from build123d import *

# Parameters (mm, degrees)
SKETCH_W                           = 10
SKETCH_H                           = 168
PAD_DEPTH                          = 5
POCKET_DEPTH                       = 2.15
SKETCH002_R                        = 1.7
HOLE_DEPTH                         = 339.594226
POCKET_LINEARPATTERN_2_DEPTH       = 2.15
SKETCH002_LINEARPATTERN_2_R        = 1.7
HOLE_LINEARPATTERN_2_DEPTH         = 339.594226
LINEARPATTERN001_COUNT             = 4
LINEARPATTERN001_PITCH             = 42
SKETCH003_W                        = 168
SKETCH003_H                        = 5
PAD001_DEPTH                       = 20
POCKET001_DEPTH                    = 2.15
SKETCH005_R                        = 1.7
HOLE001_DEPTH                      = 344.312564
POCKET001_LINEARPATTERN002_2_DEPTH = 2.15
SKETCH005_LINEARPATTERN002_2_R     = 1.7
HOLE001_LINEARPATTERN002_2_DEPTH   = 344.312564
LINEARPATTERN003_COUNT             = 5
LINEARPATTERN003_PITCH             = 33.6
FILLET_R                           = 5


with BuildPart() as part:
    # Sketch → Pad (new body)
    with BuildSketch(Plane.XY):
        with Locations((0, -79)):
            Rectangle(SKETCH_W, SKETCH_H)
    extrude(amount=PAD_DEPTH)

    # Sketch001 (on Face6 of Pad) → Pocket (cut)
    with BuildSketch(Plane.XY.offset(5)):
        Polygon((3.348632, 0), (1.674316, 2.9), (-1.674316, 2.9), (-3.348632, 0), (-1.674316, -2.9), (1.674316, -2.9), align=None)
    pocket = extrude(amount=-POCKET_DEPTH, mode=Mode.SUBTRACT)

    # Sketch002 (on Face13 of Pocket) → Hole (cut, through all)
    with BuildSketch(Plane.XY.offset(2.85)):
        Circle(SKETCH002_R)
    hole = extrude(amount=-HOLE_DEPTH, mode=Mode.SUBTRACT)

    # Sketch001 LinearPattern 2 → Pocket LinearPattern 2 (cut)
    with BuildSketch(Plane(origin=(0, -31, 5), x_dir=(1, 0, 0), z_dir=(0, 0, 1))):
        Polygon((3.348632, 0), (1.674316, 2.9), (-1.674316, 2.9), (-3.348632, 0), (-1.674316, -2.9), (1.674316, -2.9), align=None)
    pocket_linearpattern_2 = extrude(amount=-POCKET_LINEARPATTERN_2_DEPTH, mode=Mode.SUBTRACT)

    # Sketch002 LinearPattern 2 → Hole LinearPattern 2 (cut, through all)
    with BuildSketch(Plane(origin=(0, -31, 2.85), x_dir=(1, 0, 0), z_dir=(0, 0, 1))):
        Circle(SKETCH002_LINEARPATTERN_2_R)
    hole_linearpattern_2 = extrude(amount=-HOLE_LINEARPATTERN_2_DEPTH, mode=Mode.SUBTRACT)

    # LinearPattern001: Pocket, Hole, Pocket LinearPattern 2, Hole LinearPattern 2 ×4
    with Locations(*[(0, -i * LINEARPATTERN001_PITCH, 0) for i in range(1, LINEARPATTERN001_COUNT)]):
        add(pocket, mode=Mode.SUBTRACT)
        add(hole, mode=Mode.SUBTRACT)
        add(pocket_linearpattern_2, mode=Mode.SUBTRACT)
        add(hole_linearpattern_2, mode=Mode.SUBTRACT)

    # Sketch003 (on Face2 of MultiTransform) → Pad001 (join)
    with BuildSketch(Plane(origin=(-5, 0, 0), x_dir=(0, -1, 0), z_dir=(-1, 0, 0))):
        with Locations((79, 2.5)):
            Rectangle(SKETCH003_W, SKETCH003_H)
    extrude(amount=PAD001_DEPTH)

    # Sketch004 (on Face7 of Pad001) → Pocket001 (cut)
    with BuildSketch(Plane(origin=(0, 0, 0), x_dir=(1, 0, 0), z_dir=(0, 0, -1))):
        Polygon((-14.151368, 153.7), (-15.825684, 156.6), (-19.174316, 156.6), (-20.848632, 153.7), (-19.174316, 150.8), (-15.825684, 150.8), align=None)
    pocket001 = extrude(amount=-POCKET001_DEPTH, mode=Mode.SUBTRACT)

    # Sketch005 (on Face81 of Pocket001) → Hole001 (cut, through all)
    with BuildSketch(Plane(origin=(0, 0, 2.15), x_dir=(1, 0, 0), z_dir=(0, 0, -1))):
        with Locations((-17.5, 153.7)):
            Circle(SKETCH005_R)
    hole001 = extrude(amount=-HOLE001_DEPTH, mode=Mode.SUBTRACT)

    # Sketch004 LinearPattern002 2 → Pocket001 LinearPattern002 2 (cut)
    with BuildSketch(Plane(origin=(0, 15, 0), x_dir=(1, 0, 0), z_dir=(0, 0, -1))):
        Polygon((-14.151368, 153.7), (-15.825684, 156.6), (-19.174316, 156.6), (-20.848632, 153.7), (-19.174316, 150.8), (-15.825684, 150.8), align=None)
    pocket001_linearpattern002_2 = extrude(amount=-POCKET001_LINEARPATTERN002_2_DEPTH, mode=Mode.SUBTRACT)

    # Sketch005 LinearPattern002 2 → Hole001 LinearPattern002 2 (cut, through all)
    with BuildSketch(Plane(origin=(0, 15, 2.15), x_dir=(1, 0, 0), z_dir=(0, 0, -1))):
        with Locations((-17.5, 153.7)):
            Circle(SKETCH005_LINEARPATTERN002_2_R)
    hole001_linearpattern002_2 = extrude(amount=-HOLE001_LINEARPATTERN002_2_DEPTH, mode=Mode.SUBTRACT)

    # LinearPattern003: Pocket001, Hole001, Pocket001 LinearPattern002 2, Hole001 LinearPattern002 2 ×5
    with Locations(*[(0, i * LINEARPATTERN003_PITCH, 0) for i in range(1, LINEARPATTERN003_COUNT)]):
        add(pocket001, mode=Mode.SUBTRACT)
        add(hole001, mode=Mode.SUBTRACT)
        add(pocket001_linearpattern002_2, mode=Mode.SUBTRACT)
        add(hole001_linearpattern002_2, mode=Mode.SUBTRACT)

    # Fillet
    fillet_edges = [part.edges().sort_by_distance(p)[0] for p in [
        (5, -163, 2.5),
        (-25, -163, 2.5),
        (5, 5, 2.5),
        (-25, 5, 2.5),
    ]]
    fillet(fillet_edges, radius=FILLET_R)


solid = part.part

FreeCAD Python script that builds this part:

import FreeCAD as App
import Part
import Sketcher

V = App.Vector
Q = App.Units.Quantity


def edges_at(feature, points):
    """Names of the edges that pass closest to the given points."""
    edges = feature.Shape.Edges
    near = lambda p: min(range(len(edges)), key=lambda i: edges[i].distToShape(Part.Vertex(*p))[0])
    return sorted({f"Edge{near(p) + 1}" for p in points})

doc = App.newDocument("Part")
body = doc.addObject("PartDesign::Body", "Body")

# Sketch on XY plane
sketch1 = body.newObject("Sketcher::SketchObject", "Sketch")
sketch1.AttachmentSupport = (doc.getObject("XY_Plane"), [""])
sketch1.MapMode = "FlatFace"
sketch1.addGeometry([
    Part.LineSegment(V(-5, 5, 0), V(-5, -163, 0)),
    Part.LineSegment(V(-5, -163, 0), V(5, -163, 0)),
    Part.LineSegment(V(5, -163, 0), V(5, 5, 0)),
    Part.LineSegment(V(5, 5, 0), V(-5, 5, 0)),
], False)
sketch1.addConstraint([
    Sketcher.Constraint("Coincident", 0, 2, 1, 1),
    Sketcher.Constraint("Coincident", 1, 2, 2, 1),
    Sketcher.Constraint("Coincident", 2, 2, 3, 1),
    Sketcher.Constraint("Coincident", 3, 2, 0, 1),
    Sketcher.Constraint("Vertical", 0),
    Sketcher.Constraint("Horizontal", 1),
    Sketcher.Constraint("Vertical", 2),
    Sketcher.Constraint("Horizontal", 3),
    Sketcher.Constraint("DistanceX", 1, 1, 1, 2, 10.0),
    Sketcher.Constraint("DistanceY", 0, 2, 0, 1, 168.0),
    Sketcher.Constraint("DistanceX", 0, 2, -1, 1, 5.0),
    Sketcher.Constraint("DistanceY", 0, 2, -1, 1, 163.0),
])
pad1 = body.newObject("PartDesign::Pad", "Pad")
pad1.Profile = sketch1
pad1.Length = 5

# Sketch on XY plane
sketch2 = body.newObject("Sketcher::SketchObject", "Sketch001")
sketch2.AttachmentSupport = (doc.getObject("XY_Plane"), [""])
sketch2.MapMode = "FlatFace"
sketch2.AttachmentOffset = App.Placement(V(0, 0, 5), App.Rotation())
sketch2.addGeometry([
    Part.LineSegment(V(3.348632, 0, 0), V(1.674316, 2.9, 0)),  # 0
    Part.LineSegment(V(1.674316, 2.9, 0), V(-1.674316, 2.9, 0)),  # 1
    Part.LineSegment(V(-1.674316, 2.9, 0), V(-3.348632, 0, 0)),  # 2
    Part.LineSegment(V(-3.348632, 0, 0), V(-1.674316, -2.9, 0)),  # 3
    Part.LineSegment(V(-1.674316, -2.9, 0), V(1.674316, -2.9, 0)),  # 4
    Part.LineSegment(V(1.674316, -2.9, 0), V(3.348632, 0, 0)),  # 5
], False)
sketch2.addConstraint([
    Sketcher.Constraint("Coincident", 0, 2, 1, 1),
    Sketcher.Constraint("Coincident", 1, 2, 2, 1),
    Sketcher.Constraint("Coincident", 2, 2, 3, 1),
    Sketcher.Constraint("Coincident", 3, 2, 4, 1),
    Sketcher.Constraint("Coincident", 4, 2, 5, 1),
    Sketcher.Constraint("Coincident", 5, 2, 0, 1),
    Sketcher.Constraint("Horizontal", 1),
    Sketcher.Constraint("Horizontal", 4),
    Sketcher.Constraint("Symmetric", 0, 2, 3, 2, -1, 1),
    Sketcher.Constraint("Symmetric", 2, 2, 5, 2, -1, 1),
    Sketcher.Constraint("PointOnObject", 2, 2, -1),
    Sketcher.Constraint("Parallel", 2, 5),
    Sketcher.Constraint("Vertical", 1, 2, 3, 2),
    Sketcher.Constraint("Angle", 0, Q("120.000003 deg")),
    Sketcher.Constraint("DistanceY", -1, 1, 0, 2, 2.9),
    Sketcher.Constraint("DistanceX", 1, 2, 1, 1, 3.348632),
])
pocket1 = body.newObject("PartDesign::Pocket", "Pocket")
pocket1.Profile = sketch2
pocket1.Length = 2.15

# Sketch on XY plane
sketch3 = body.newObject("Sketcher::SketchObject", "Sketch002")
sketch3.AttachmentSupport = (doc.getObject("XY_Plane"), [""])
sketch3.MapMode = "FlatFace"
sketch3.AttachmentOffset = App.Placement(V(0, 0, 2.85), App.Rotation())
sketch3.addGeometry(Part.Circle(V(0, 0, 0), V(0, 0, 1), 1.7), False)
sketch3.addConstraint([
    Sketcher.Constraint("Coincident", 0, 3, -1, 1),
    Sketcher.Constraint("Diameter", 0, 3.4),
])
pocket2 = body.newObject("PartDesign::Pocket", "Pocket001")
pocket2.Profile = sketch3
pocket2.Type = "ThroughAll"

# Sketch on XY plane
sketch4 = body.newObject("Sketcher::SketchObject", "Sketch003")
sketch4.AttachmentSupport = (doc.getObject("XY_Plane"), [""])
sketch4.MapMode = "FlatFace"
sketch4.AttachmentOffset = App.Placement(V(0, 0, 5), App.Rotation())
sketch4.addGeometry([
    Part.LineSegment(V(3.348632, -31, 0), V(1.674316, -28.1, 0)),  # 0
    Part.LineSegment(V(1.674316, -28.1, 0), V(-1.674316, -28.1, 0)),  # 1
    Part.LineSegment(V(-1.674316, -28.1, 0), V(-3.348632, -31, 0)),  # 2
    Part.LineSegment(V(-3.348632, -31, 0), V(-1.674316, -33.9, 0)),  # 3
    Part.LineSegment(V(-1.674316, -33.9, 0), V(1.674316, -33.9, 0)),  # 4
    Part.LineSegment(V(1.674316, -33.9, 0), V(3.348632, -31, 0)),  # 5
], False)
sketch4.addConstraint([
    Sketcher.Constraint("Coincident", 0, 2, 1, 1),
    Sketcher.Constraint("Coincident", 1, 2, 2, 1),
    Sketcher.Constraint("Coincident", 2, 2, 3, 1),
    Sketcher.Constraint("Coincident", 3, 2, 4, 1),
    Sketcher.Constraint("Coincident", 4, 2, 5, 1),
    Sketcher.Constraint("Coincident", 5, 2, 0, 1),
    Sketcher.Constraint("Horizontal", 1),
    Sketcher.Constraint("Horizontal", 4),
    Sketcher.Constraint("Symmetric", 2, 2, 5, 2, -2),
    Sketcher.Constraint("Parallel", 0, 3),
    Sketcher.Constraint("Parallel", 2, 5),
    Sketcher.Constraint("Vertical", 1, 2, 3, 2),
    Sketcher.Constraint("Vertical", 0, 2, 4, 2),
    Sketcher.Constraint("Angle", 0, Q("120.000003 deg")),
    Sketcher.Constraint("DistanceY", 2, 2, -1, 1, 31.0),
    Sketcher.Constraint("DistanceY", 0, 2, -1, 1, 28.1),
    Sketcher.Constraint("DistanceX", 1, 2, 1, 1, 3.348632),
])
pocket3 = body.newObject("PartDesign::Pocket", "Pocket002")
pocket3.Profile = sketch4
pocket3.Length = 2.15

# Sketch on XY plane
sketch5 = body.newObject("Sketcher::SketchObject", "Sketch004")
sketch5.AttachmentSupport = (doc.getObject("XY_Plane"), [""])
sketch5.MapMode = "FlatFace"
sketch5.AttachmentOffset = App.Placement(V(0, 0, 2.85), App.Rotation())
sketch5.addGeometry(Part.Circle(V(0, -31, 0), V(0, 0, 1), 1.7), False)
sketch5.addConstraint([
    Sketcher.Constraint("PointOnObject", 0, 3, -2),
    Sketcher.Constraint("Diameter", 0, 3.4),
    Sketcher.Constraint("DistanceY", 0, 3, -1, 1, 31.0),
])
pocket4 = body.newObject("PartDesign::Pocket", "Pocket003")
pocket4.Profile = sketch5
pocket4.Type = "ThroughAll"
doc.recompute()

linearpattern = body.newObject("PartDesign::LinearPattern", "LinearPattern")
linearpattern.Originals = [pocket1, pocket2, pocket3, pocket4]
linearpattern.Direction = (doc.getObject("Y_Axis"), [""])
linearpattern.Mode = "offset"
linearpattern.Offset = 42
linearpattern.Occurrences = 4
linearpattern.Reversed = True
body.Tip = linearpattern

# Sketch on YZ plane
sketch6 = body.newObject("Sketcher::SketchObject", "Sketch005")
sketch6.AttachmentSupport = (doc.getObject("YZ_Plane"), [""])
sketch6.MapMode = "FlatFace"
sketch6.AttachmentOffset = App.Placement(V(0, 0, -5), App.Rotation())
sketch6.addGeometry([
    Part.LineSegment(V(5, 5, 0), V(5, 0, 0)),
    Part.LineSegment(V(5, 0, 0), V(-163, 0, 0)),
    Part.LineSegment(V(-163, 0, 0), V(-163, 5, 0)),
    Part.LineSegment(V(-163, 5, 0), V(5, 5, 0)),
], False)
sketch6.addConstraint([
    Sketcher.Constraint("Coincident", 0, 2, 1, 1),
    Sketcher.Constraint("Coincident", 1, 2, 2, 1),
    Sketcher.Constraint("Coincident", 2, 2, 3, 1),
    Sketcher.Constraint("Coincident", 3, 2, 0, 1),
    Sketcher.Constraint("Vertical", 0),
    Sketcher.Constraint("Horizontal", 1),
    Sketcher.Constraint("Vertical", 2),
    Sketcher.Constraint("Horizontal", 3),
    Sketcher.Constraint("PointOnObject", 0, 2, -1),
    Sketcher.Constraint("DistanceX", 1, 2, 1, 1, 168.0),
    Sketcher.Constraint("DistanceY", 0, 2, 0, 1, 5.0),
    Sketcher.Constraint("DistanceX", -1, 1, 0, 2, 5.0),
])
pad2 = body.newObject("PartDesign::Pad", "Pad001")
pad2.Profile = sketch6
pad2.Length = 20
pad2.Reversed = True

# Sketch on XY plane
sketch7 = body.newObject("Sketcher::SketchObject", "Sketch006")
sketch7.AttachmentSupport = (doc.getObject("XY_Plane"), [""])
sketch7.MapMode = "FlatFace"
sketch7.addGeometry([
    Part.LineSegment(V(-14.151368, -153.7, 0), V(-15.825684, -156.6, 0)),  # 0
    Part.LineSegment(V(-15.825684, -156.6, 0), V(-19.174316, -156.6, 0)),  # 1
    Part.LineSegment(V(-19.174316, -156.6, 0), V(-20.848632, -153.7, 0)),  # 2
    Part.LineSegment(V(-20.848632, -153.7, 0), V(-19.174316, -150.8, 0)),  # 3
    Part.LineSegment(V(-19.174316, -150.8, 0), V(-15.825684, -150.8, 0)),  # 4
    Part.LineSegment(V(-15.825684, -150.8, 0), V(-14.151368, -153.7, 0)),  # 5
], False)
sketch7.addConstraint([
    Sketcher.Constraint("Coincident", 0, 2, 1, 1),
    Sketcher.Constraint("Coincident", 1, 2, 2, 1),
    Sketcher.Constraint("Coincident", 2, 2, 3, 1),
    Sketcher.Constraint("Coincident", 3, 2, 4, 1),
    Sketcher.Constraint("Coincident", 4, 2, 5, 1),
    Sketcher.Constraint("Coincident", 5, 2, 0, 1),
    Sketcher.Constraint("Horizontal", 1),
    Sketcher.Constraint("Horizontal", 4),
    Sketcher.Constraint("Parallel", 0, 3),
    Sketcher.Constraint("Parallel", 2, 5),
    Sketcher.Constraint("Horizontal", 2, 2, 5, 2),
    Sketcher.Constraint("Vertical", 1, 2, 3, 2),
    Sketcher.Constraint("Vertical", 0, 2, 4, 2),
    Sketcher.Constraint("Angle", 0, Q("-120.000003 deg")),
    Sketcher.Constraint("DistanceY", 0, 2, -1, 1, 156.6),
    Sketcher.Constraint("DistanceY", 2, 2, -1, 1, 153.7),
    Sketcher.Constraint("DistanceX", 1, 2, 1, 1, 3.348632),
    Sketcher.Constraint("DistanceX", 2, 2, -1, 1, 20.848632),
])
pocket5 = body.newObject("PartDesign::Pocket", "Pocket004")
pocket5.Profile = sketch7
pocket5.Length = 2.15
pocket5.Reversed = True

# Sketch on XY plane
sketch8 = body.newObject("Sketcher::SketchObject", "Sketch007")
sketch8.AttachmentSupport = (doc.getObject("XY_Plane"), [""])
sketch8.MapMode = "FlatFace"
sketch8.AttachmentOffset = App.Placement(V(0, 0, 2.15), App.Rotation())
sketch8.addGeometry(Part.Circle(V(-17.5, -153.7, 0), V(0, 0, 1), 1.7), False)
sketch8.addConstraint([
    Sketcher.Constraint("Diameter", 0, 3.4),
    Sketcher.Constraint("DistanceX", 0, 3, -1, 1, 17.5),
    Sketcher.Constraint("DistanceY", 0, 3, -1, 1, 153.7),
])
pocket6 = body.newObject("PartDesign::Pocket", "Pocket005")
pocket6.Profile = sketch8
pocket6.Type = "ThroughAll"
pocket6.Reversed = True

# Sketch on XY plane
sketch9 = body.newObject("Sketcher::SketchObject", "Sketch008")
sketch9.AttachmentSupport = (doc.getObject("XY_Plane"), [""])
sketch9.MapMode = "FlatFace"
sketch9.addGeometry([
    Part.LineSegment(V(-14.151368, -138.7, 0), V(-15.825684, -141.6, 0)),  # 0
    Part.LineSegment(V(-15.825684, -141.6, 0), V(-19.174316, -141.6, 0)),  # 1
    Part.LineSegment(V(-19.174316, -141.6, 0), V(-20.848632, -138.7, 0)),  # 2
    Part.LineSegment(V(-20.848632, -138.7, 0), V(-19.174316, -135.8, 0)),  # 3
    Part.LineSegment(V(-19.174316, -135.8, 0), V(-15.825684, -135.8, 0)),  # 4
    Part.LineSegment(V(-15.825684, -135.8, 0), V(-14.151368, -138.7, 0)),  # 5
], False)
sketch9.addConstraint([
    Sketcher.Constraint("Coincident", 0, 2, 1, 1),
    Sketcher.Constraint("Coincident", 1, 2, 2, 1),
    Sketcher.Constraint("Coincident", 2, 2, 3, 1),
    Sketcher.Constraint("Coincident", 3, 2, 4, 1),
    Sketcher.Constraint("Coincident", 4, 2, 5, 1),
    Sketcher.Constraint("Coincident", 5, 2, 0, 1),
    Sketcher.Constraint("Horizontal", 1),
    Sketcher.Constraint("Horizontal", 4),
    Sketcher.Constraint("Parallel", 0, 3),
    Sketcher.Constraint("Parallel", 2, 5),
    Sketcher.Constraint("Horizontal", 2, 2, 5, 2),
    Sketcher.Constraint("Vertical", 1, 2, 3, 2),
    Sketcher.Constraint("Vertical", 0, 2, 4, 2),
    Sketcher.Constraint("Angle", 0, Q("-120.000003 deg")),
    Sketcher.Constraint("DistanceY", 0, 2, -1, 1, 141.6),
    Sketcher.Constraint("DistanceY", 2, 2, -1, 1, 138.7),
    Sketcher.Constraint("DistanceX", 1, 2, 1, 1, 3.348632),
    Sketcher.Constraint("DistanceX", 2, 2, -1, 1, 20.848632),
])
pocket7 = body.newObject("PartDesign::Pocket", "Pocket006")
pocket7.Profile = sketch9
pocket7.Length = 2.15
pocket7.Reversed = True

# Sketch on XY plane
sketch10 = body.newObject("Sketcher::SketchObject", "Sketch009")
sketch10.AttachmentSupport = (doc.getObject("XY_Plane"), [""])
sketch10.MapMode = "FlatFace"
sketch10.AttachmentOffset = App.Placement(V(0, 0, 2.15), App.Rotation())
sketch10.addGeometry(Part.Circle(V(-17.5, -138.7, 0), V(0, 0, 1), 1.7), False)
sketch10.addConstraint([
    Sketcher.Constraint("Diameter", 0, 3.4),
    Sketcher.Constraint("DistanceX", 0, 3, -1, 1, 17.5),
    Sketcher.Constraint("DistanceY", 0, 3, -1, 1, 138.7),
])
pocket8 = body.newObject("PartDesign::Pocket", "Pocket007")
pocket8.Profile = sketch10
pocket8.Type = "ThroughAll"
pocket8.Reversed = True
doc.recompute()

linearpattern2 = body.newObject("PartDesign::LinearPattern", "LinearPattern001")
linearpattern2.Originals = [pocket5, pocket6, pocket7, pocket8]
linearpattern2.Direction = (doc.getObject("Y_Axis"), [""])
linearpattern2.Mode = "offset"
linearpattern2.Offset = 33.6
linearpattern2.Occurrences = 5
body.Tip = linearpattern2
doc.recompute()

fillet = body.newObject("PartDesign::Fillet", "Fillet")
fillet.Base = (linearpattern2, edges_at(linearpattern2, [
    (5, -163, 2.5),
    (-25, -163, 2.5),
    (5, 5, 2.5),
    (-25, 5, 2.5),
]))
fillet.Radius = 5

doc.recompute()
